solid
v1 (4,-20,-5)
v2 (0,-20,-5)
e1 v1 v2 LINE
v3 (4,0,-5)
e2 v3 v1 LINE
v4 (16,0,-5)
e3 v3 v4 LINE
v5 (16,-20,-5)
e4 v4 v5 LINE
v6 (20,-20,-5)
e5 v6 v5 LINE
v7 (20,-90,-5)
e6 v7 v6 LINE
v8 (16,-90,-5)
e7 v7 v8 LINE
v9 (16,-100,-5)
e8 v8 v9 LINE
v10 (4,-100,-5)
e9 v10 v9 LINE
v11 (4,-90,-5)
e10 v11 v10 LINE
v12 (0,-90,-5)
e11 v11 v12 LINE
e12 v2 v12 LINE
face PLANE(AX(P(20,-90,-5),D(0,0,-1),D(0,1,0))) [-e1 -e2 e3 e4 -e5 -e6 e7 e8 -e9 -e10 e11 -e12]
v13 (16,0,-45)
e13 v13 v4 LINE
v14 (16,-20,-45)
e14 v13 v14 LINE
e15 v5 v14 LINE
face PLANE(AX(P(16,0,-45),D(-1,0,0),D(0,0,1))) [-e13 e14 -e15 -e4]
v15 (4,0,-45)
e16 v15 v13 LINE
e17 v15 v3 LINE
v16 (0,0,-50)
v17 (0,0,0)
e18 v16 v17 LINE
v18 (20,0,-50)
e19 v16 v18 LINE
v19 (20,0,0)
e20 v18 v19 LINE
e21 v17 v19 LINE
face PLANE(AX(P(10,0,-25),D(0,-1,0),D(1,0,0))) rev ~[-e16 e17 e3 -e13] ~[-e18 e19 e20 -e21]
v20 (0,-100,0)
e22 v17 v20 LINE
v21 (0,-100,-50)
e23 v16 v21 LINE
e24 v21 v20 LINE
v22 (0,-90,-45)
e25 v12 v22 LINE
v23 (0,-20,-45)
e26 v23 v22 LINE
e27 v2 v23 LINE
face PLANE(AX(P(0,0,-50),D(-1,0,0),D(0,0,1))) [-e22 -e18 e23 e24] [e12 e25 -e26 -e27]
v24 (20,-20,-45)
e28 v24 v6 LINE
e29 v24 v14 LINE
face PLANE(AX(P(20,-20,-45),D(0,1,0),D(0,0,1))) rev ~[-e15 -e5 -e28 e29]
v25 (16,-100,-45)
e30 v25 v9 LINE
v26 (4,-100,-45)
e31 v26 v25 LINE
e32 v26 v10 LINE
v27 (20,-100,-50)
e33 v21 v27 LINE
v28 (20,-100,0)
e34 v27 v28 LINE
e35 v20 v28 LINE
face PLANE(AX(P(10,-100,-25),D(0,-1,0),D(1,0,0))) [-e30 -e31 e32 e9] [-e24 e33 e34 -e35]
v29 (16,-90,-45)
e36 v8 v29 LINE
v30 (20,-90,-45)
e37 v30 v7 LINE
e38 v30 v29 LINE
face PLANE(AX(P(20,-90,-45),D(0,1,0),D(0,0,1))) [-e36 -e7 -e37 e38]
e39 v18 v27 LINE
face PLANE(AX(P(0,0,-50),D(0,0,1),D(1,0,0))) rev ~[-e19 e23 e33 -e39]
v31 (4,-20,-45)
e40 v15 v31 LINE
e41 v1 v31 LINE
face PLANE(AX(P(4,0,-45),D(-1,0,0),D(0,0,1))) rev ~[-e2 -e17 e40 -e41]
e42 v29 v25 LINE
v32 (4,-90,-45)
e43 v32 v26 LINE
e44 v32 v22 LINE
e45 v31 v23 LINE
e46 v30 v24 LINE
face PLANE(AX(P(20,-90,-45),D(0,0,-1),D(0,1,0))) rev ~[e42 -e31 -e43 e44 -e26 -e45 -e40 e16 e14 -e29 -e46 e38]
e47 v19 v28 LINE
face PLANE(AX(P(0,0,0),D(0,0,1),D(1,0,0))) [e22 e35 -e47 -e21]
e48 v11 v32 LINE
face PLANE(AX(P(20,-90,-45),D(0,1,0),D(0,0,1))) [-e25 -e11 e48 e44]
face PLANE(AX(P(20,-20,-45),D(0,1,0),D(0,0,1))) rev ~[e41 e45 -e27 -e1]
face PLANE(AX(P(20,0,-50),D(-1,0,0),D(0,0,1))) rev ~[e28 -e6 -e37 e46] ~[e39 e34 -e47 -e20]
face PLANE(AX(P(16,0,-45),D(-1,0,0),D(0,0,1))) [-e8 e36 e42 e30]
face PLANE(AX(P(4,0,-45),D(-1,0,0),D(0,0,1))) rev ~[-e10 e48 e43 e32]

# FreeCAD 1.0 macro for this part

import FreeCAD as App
import Part
import Sketcher

V = App.Vector
Q = App.Units.Quantity

doc = App.newDocument("Part")
body = doc.addObject("PartDesign::Body", "Body")

# Sketch on XZ plane
sketch1 = doc.addObject("Sketcher::SketchObject", "Sketch")
body.addObject(sketch1)
sketch1.AttachmentSupport = (doc.XZ_Plane, [""])
sketch1.MapMode = "FlatFace"
sketch1.addGeometry([
    Part.LineSegment(V(0, 0, 0), V(0, -50, 0)),  # 0
    Part.LineSegment(V(0, -50, 0), V(20, -50, 0)),  # 1
    Part.LineSegment(V(20, -50, 0), V(20, 0, 0)),  # 2
    Part.LineSegment(V(20, 0, 0), V(0, 0, 0)),  # 3
    Part.LineSegment(V(16, -45, 0), V(4, -45, 0)),  # 4
    Part.LineSegment(V(4, -45, 0), V(4, -5, 0)),  # 5
    Part.LineSegment(V(4, -5, 0), V(16, -5, 0)),  # 6
    Part.LineSegment(V(16, -5, 0), V(16, -45, 0)),  # 7
], False)
sketch1.addConstraint([
    Sketcher.Constraint("Coincident", 0, 2, 1, 1),
    Sketcher.Constraint("Coincident", 1, 2, 2, 1),
    Sketcher.Constraint("Coincident", 2, 2, 3, 1),
    Sketcher.Constraint("Coincident", 3, 2, 0, 1),
    Sketcher.Constraint("Coincident", 4, 2, 5, 1),
    Sketcher.Constraint("Coincident", 5, 2, 6, 1),
    Sketcher.Constraint("Coincident", 6, 2, 7, 1),
    Sketcher.Constraint("Coincident", 7, 2, 4, 1),
    Sketcher.Constraint("Vertical", 0),
    Sketcher.Constraint("Horizontal", 1),
    Sketcher.Constraint("Vertical", 2),
    Sketcher.Constraint("Horizontal", 3),
    Sketcher.Constraint("Horizontal", 4),
    Sketcher.Constraint("Vertical", 5),
    Sketcher.Constraint("Horizontal", 6),
    Sketcher.Constraint("Vertical", 7),
    Sketcher.Constraint("Coincident", 3, 2, -1, 1),
    Sketcher.Constraint("DistanceX", 1, 1, 1, 2, Q("20 mm")),
    Sketcher.Constraint("DistanceX", 4, 2, 4, 1, Q("12 mm")),
    Sketcher.Constraint("DistanceY", 0, 2, 0, 1, Q("50 mm")),
    Sketcher.Constraint("DistanceY", 5, 1, 5, 2, Q("40 mm")),
    Sketcher.Constraint("DistanceX", -1, 1, 4, 2, Q("4 mm")),
    Sketcher.Constraint("DistanceY", 4, 2, -1, 1, Q("45 mm")),
])
pad1 = doc.addObject("PartDesign::Pad", "Pad")
body.addObject(pad1)
pad1.Profile = sketch1
pad1.Length = 100

# Sketch on YZ plane
sketch2 = doc.addObject("Sketcher::SketchObject", "Sketch001")
body.addObject(sketch2)
sketch2.AttachmentSupport = (doc.YZ_Plane, [""])
sketch2.MapMode = "FlatFace"
sketch2.AttachmentOffset = App.Placement(V(0, 0, 20), App.Rotation())
sketch2.addGeometry([
    Part.LineSegment(V(-90, -5, 0), V(-90, -45, 0)),
    Part.LineSegment(V(-90, -45, 0), V(-20, -45, 0)),
    Part.LineSegment(V(-20, -45, 0), V(-20, -5, 0)),
    Part.LineSegment(V(-20, -5, 0), V(-90, -5, 0)),
], False)
sketch2.addConstraint([
    Sketcher.Constraint("Coincident", 0, 2, 1, 1),
    Sketcher.Constraint("Coincident", 1, 2, 2, 1),
    Sketcher.Constraint("Coincident", 2, 2, 3, 1),
    Sketcher.Constraint("Coincident", 3, 2, 0, 1),
    Sketcher.Constraint("Vertical", 0),
    Sketcher.Constraint("Horizontal", 1),
    Sketcher.Constraint("Vertical", 2),
    Sketcher.Constraint("Horizontal", 3),
    Sketcher.Constraint("DistanceX", 1, 1, 1, 2, Q("70 mm")),
    Sketcher.Constraint("DistanceY", 0, 2, 0, 1, Q("40 mm")),
    Sketcher.Constraint("DistanceX", 0, 2, -1, 1, Q("90 mm")),
    Sketcher.Constraint("DistanceY", 0, 2, -1, 1, Q("45 mm")),
])
pocket1 = doc.addObject("PartDesign::Pocket", "Pocket")
body.addObject(pocket1)
pocket1.Profile = sketch2
pocket1.Length = 25

doc.recompute()
